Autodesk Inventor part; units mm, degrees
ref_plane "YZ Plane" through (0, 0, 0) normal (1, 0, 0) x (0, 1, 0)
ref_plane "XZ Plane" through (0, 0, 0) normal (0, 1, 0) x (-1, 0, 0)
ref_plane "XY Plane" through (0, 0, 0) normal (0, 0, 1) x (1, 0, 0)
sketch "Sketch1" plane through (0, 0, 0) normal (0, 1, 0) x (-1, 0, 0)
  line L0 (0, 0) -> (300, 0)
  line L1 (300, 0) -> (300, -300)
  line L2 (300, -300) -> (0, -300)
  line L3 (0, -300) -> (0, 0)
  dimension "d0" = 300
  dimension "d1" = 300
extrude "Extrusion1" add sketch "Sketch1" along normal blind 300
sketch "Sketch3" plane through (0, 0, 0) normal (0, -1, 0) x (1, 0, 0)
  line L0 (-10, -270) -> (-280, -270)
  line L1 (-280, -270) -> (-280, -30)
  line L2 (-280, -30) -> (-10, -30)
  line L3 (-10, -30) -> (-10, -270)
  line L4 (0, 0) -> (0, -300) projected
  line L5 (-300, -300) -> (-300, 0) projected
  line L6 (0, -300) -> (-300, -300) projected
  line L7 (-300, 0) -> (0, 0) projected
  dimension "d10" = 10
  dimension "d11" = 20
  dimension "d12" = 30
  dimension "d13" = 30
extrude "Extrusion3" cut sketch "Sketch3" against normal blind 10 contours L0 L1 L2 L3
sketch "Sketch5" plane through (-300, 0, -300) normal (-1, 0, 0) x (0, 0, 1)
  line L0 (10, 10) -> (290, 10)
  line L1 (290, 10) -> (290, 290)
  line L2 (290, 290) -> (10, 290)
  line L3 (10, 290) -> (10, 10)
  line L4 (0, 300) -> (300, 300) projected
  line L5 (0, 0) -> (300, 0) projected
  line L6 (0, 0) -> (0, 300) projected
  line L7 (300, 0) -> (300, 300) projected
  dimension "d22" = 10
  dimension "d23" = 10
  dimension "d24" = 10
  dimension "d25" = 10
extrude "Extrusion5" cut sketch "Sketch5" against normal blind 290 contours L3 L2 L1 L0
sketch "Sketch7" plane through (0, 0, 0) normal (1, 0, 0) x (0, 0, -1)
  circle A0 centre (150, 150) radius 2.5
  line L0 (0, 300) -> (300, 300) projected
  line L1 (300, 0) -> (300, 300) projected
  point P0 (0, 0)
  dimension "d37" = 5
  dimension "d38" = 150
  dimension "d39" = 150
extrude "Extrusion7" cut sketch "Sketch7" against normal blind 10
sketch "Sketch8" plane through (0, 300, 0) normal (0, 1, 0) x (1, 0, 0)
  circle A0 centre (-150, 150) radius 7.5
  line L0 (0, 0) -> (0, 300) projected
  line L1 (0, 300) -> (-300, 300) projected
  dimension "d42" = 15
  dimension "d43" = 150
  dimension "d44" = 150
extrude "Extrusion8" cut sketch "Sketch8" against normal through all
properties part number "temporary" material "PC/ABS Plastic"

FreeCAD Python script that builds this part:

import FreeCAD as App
import Part
import Sketcher

V = App.Vector
Q = App.Units.Quantity


def add_polygon(sketch, points):
    """Adds a closed chain of lines whose ends are joined by coincident constraints."""
    first, n = sketch.GeometryCount, len(points)
    for a, b in zip(points, points[1:] + points[:1]):
        sketch.addGeometry(Part.LineSegment(App.Vector(*a, 0), App.Vector(*b, 0)), False)
    for i in range(n):
        sketch.addConstraint(Sketcher.Constraint("Coincident", first + i, 2, first + (i + 1) % n, 1))

doc = App.newDocument("Part")
params = doc.addObject("Spreadsheet::Sheet", "Params")
for row, (alias, value) in enumerate([
    ("sketch1_width", "300 mm"),
    ("pad1_length", "300 mm"),
    ("sketch2_width", "270 mm"),
    ("sketch2_height", "240 mm"),
    ("pocket1_length", "10 mm"),
    ("sketch3_width", "280 mm"),
    ("pocket2_length", "290 mm"),
    ("sketch4_diameter", "5 mm"),
    ("pocket3_length", "10 mm"),
    ("sketch5_diameter", "15 mm"),
], start=1):
    params.set(f"A{row}", alias)
    params.set(f"B{row}", "=" + value)
    params.setAlias(f"B{row}", alias)

body = doc.addObject("PartDesign::Body", "Body")

sketch1 = body.newObject("Sketcher::SketchObject", "Sketch")
sketch1.AttachmentSupport = (doc.getObject("XZ_Plane"), [""])
sketch1.MapMode = "FlatFace"
add_polygon(sketch1, [(-300, 0), (0, 0), (0, -300), (-300, -300)])
sketch1.addConstraint([
    Sketcher.Constraint("Horizontal", 0),
    Sketcher.Constraint("Vertical", 1),
    Sketcher.Constraint("Horizontal", 2),
    Sketcher.Constraint("Vertical", 3),
    Sketcher.Constraint("Coincident", 0, 2, -1, 1),
    Sketcher.Constraint("Equal", 2, 1),
    Sketcher.Constraint("DistanceX", 0, 1, 0, 2, Q("300 mm")),
])
sketch1.setExpression("Constraints[10]", "Params.sketch1_width")
pad1 = body.newObject("PartDesign::Pad", "Pad")
pad1.Profile = sketch1
pad1.setExpression("Length", "Params.pad1_length")
pad1.Reversed = True

sketch2 = body.newObject("Sketcher::SketchObject", "Sketch001")
sketch2.AttachmentSupport = (doc.getObject("XZ_Plane"), [""])
sketch2.MapMode = "FlatFace"
add_polygon(sketch2, [(-280, -270), (-10, -270), (-10, -30), (-280, -30)])
sketch2.addConstraint([
    Sketcher.Constraint("Horizontal", 0),
    Sketcher.Constraint("Vertical", 1),
    Sketcher.Constraint("Horizontal", 2),
    Sketcher.Constraint("Vertical", 3),
    Sketcher.Constraint("DistanceX", 0, 2, -1, 1, Q("10 mm")),
    Sketcher.Constraint("DistanceY", 1, 2, -1, 1, Q("30 mm")),
    Sketcher.Constraint("DistanceX", 0, 1, 0, 2, Q("270 mm")),
    Sketcher.Constraint("DistanceY", 1, 1, 1, 2, Q("240 mm")),
])
sketch2.setExpression("Constraints[10]", "Params.sketch2_width")
sketch2.setExpression("Constraints[11]", "Params.sketch2_height")
pocket1 = body.newObject("PartDesign::Pocket", "Pocket")
pocket1.Profile = sketch2
pocket1.setExpression("Length", "Params.pocket1_length")

sketch3 = body.newObject("Sketcher::SketchObject", "Sketch002")
sketch3.AttachmentSupport = (doc.getObject("YZ_Plane"), [""])
sketch3.MapMode = "FlatFace"
sketch3.AttachmentOffset = App.Placement(V(0, 0, -300), App.Rotation())
add_polygon(sketch3, [(290, -290), (10, -290), (10, -10), (290, -10)])
sketch3.addConstraint([
    Sketcher.Constraint("Horizontal", 0),
    Sketcher.Constraint("Vertical", 1),
    Sketcher.Constraint("Horizontal", 2),
    Sketcher.Constraint("Vertical", 3),
    Sketcher.Constraint("Equal", 2, 1),
    Sketcher.Constraint("DistanceX", -1, 1, 0, 2, Q("10 mm")),
    Sketcher.Constraint("DistanceY", 1, 2, -1, 1, Q("10 mm")),
    Sketcher.Constraint("DistanceX", 0, 2, 0, 1, Q("280 mm")),
])
sketch3.setExpression("Constraints[11]", "Params.sketch3_width")
pocket2 = body.newObject("PartDesign::Pocket", "Pocket001")
pocket2.Profile = sketch3
pocket2.setExpression("Length", "Params.pocket2_length")
pocket2.Reversed = True

sketch4 = body.newObject("Sketcher::SketchObject", "Sketch003")
sketch4.AttachmentSupport = (doc.getObject("YZ_Plane"), [""])
sketch4.MapMode = "FlatFace"
sketch4.addGeometry(Part.Circle(V(150, -150, 0), V(0, 0, 1), 2.5), False)
sketch4.addConstraint([
    Sketcher.Constraint("Diameter", 0, Q("5 mm")),
    Sketcher.Constraint("DistanceX", -1, 1, 0, 3, Q("150 mm")),
    Sketcher.Constraint("DistanceY", 0, 3, -1, 1, Q("150 mm")),
])
sketch4.setExpression("Constraints[0]", "Params.sketch4_diameter")
pocket3 = body.newObject("PartDesign::Pocket", "Pocket002")
pocket3.Profile = sketch4
pocket3.setExpression("Length", "Params.pocket3_length")

sketch5 = body.newObject("Sketcher::SketchObject", "Sketch004")
sketch5.AttachmentSupport = (doc.getObject("XZ_Plane"), [""])
sketch5.MapMode = "FlatFace"
sketch5.AttachmentOffset = App.Placement(V(0, 0, -300), App.Rotation())
sketch5.addGeometry(Part.Circle(V(-150, -150, 0), V(0, 0, 1), 8), False)
sketch5.addConstraint([
    Sketcher.Constraint("Diameter", 0, Q("15 mm")),
    Sketcher.Constraint("DistanceX", 0, 3, -1, 1, Q("150 mm")),
    Sketcher.Constraint("DistanceY", 0, 3, -1, 1, Q("150 mm")),
])
sketch5.setExpression("Constraints[0]", "Params.sketch5_diameter")
pocket4 = body.newObject("PartDesign::Pocket", "Pocket003")
pocket4.Profile = sketch5
pocket4.Type = "ThroughAll"
pocket4.Reversed = True

doc.recompute()
